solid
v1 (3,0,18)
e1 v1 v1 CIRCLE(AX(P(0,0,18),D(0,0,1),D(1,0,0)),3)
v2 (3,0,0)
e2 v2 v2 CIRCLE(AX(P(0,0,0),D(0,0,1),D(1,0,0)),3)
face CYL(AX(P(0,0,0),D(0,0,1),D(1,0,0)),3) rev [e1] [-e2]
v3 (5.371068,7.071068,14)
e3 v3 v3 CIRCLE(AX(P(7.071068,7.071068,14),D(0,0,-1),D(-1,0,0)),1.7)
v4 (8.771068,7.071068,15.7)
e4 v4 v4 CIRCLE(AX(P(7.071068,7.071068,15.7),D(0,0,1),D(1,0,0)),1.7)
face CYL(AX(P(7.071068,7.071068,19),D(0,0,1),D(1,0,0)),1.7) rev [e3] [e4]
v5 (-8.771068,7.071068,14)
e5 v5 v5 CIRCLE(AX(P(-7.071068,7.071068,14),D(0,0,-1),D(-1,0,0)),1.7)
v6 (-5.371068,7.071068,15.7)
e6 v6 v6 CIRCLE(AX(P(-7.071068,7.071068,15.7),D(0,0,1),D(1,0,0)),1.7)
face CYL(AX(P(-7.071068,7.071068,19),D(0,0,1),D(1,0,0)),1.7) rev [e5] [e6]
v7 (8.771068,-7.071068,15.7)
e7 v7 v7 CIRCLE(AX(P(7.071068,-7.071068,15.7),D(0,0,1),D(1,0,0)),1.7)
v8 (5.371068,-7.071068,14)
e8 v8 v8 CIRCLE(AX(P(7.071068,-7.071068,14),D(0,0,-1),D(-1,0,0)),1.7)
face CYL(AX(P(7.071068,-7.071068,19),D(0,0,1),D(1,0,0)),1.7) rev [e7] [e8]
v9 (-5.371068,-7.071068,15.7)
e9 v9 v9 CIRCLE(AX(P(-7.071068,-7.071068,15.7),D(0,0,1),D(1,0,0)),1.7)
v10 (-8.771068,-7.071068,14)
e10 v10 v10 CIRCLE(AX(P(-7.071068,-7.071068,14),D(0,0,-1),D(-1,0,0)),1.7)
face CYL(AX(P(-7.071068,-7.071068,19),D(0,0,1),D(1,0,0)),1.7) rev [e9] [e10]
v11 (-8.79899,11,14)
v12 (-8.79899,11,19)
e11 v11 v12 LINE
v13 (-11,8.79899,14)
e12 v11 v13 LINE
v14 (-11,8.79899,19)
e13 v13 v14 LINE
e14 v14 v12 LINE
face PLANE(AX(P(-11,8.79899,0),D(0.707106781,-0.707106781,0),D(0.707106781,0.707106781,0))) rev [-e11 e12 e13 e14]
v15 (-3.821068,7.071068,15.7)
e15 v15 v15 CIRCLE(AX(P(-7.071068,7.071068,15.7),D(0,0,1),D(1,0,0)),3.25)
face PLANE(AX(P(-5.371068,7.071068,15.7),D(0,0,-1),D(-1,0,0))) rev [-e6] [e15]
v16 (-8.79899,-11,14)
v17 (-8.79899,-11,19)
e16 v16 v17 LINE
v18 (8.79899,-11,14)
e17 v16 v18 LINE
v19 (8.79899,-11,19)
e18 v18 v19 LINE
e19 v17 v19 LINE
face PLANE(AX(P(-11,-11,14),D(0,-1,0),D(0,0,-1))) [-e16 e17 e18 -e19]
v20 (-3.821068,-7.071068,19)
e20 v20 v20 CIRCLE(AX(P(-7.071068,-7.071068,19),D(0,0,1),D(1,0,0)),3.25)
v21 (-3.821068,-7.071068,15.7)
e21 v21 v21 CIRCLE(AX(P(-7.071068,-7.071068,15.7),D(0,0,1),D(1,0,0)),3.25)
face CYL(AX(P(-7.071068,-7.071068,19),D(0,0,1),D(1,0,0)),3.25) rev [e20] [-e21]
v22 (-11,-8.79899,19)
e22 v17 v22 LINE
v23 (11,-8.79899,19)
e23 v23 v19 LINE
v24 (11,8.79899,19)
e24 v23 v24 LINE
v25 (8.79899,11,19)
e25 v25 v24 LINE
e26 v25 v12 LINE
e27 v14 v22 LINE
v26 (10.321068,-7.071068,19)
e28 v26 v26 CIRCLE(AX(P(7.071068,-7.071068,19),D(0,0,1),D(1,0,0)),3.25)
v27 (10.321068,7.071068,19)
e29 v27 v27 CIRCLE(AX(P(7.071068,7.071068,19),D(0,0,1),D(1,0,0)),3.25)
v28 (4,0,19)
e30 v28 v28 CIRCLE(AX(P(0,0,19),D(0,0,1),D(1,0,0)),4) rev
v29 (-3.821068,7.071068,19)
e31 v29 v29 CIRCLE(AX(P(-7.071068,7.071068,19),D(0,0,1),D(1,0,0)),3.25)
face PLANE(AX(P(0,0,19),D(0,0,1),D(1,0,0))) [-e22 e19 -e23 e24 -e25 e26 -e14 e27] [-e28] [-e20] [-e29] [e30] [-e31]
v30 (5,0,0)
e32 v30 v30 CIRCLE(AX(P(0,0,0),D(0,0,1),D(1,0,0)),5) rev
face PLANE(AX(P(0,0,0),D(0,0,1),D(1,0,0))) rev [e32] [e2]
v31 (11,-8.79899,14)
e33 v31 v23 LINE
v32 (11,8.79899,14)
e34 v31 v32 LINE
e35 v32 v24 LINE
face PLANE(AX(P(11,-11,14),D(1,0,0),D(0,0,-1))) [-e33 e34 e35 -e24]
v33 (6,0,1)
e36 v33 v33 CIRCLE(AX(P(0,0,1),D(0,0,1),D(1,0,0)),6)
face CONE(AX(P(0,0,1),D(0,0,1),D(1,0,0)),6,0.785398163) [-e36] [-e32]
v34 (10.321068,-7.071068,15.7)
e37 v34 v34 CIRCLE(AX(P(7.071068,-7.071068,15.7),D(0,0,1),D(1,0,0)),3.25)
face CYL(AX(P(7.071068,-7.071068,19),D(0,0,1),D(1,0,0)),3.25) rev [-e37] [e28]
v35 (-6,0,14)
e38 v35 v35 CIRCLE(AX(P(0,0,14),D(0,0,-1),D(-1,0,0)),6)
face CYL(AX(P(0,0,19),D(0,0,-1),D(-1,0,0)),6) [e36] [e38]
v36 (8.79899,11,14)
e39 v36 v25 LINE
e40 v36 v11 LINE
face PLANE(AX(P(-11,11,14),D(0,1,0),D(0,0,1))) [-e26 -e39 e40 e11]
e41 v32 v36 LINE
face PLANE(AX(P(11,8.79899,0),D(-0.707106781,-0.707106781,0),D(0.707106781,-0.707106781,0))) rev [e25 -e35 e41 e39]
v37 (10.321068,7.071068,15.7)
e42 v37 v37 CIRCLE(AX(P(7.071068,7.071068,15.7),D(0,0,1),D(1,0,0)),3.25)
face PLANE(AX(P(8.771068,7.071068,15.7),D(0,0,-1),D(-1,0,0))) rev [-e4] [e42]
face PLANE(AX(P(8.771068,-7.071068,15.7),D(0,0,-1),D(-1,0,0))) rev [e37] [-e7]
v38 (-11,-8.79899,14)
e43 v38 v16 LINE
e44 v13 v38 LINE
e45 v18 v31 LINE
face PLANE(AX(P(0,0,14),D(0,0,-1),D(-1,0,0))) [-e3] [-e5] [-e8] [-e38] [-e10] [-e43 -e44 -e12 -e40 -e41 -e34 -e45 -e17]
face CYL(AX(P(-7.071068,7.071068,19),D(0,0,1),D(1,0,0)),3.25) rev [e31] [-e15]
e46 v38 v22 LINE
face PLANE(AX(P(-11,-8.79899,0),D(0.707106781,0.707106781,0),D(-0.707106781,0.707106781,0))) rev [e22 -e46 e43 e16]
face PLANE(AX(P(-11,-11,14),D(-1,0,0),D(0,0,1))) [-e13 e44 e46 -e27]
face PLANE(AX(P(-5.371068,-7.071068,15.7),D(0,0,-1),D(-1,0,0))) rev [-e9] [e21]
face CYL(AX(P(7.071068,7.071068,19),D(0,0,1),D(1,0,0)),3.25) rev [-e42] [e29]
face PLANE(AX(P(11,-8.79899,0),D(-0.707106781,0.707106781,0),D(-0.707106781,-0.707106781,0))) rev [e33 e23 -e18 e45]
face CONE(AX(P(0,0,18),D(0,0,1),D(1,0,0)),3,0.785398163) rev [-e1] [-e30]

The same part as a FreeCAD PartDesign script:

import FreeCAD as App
import Part
import Sketcher


def edges_at(feature, points):
    """Names of the edges that pass closest to the given points."""
    edges = feature.Shape.Edges
    near = lambda p: min(range(len(edges)), key=lambda i: edges[i].distToShape(Part.Vertex(*p))[0])
    return sorted({f"Edge{near(p) + 1}" for p in points})


def add_polygon(sketch, points):
    """Adds a closed chain of lines whose ends are joined by coincident constraints."""
    first, n = sketch.GeometryCount, len(points)
    for a, b in zip(points, points[1:] + points[:1]):
        sketch.addGeometry(Part.LineSegment(App.Vector(*a, 0), App.Vector(*b, 0)), False)
    for i in range(n):
        sketch.addConstraint(Sketcher.Constraint("Coincident", first + i, 2, first + (i + 1) % n, 1))

doc = App.newDocument("Part")
body = doc.addObject("PartDesign::Body", "Body")

sketch1 = body.newObject("Sketcher::SketchObject", "Sketch")
sketch1.AttachmentSupport = (doc.getObject("XY_Plane"), [""])
sketch1.MapMode = "FlatFace"
sketch1.addGeometry(Part.Circle(App.Vector(0, 0, 0), App.Vector(0, 0, 1), 6), False)
sketch1.addConstraint([
    Sketcher.Constraint("Coincident", 0, 3, -1, 1),
    Sketcher.Constraint("Diameter", 0, 12.0),
])
pad1 = body.newObject("PartDesign::Pad", "Pad")
pad1.Profile = sketch1
pad1.Length = 19

sketch2 = body.newObject("Sketcher::SketchObject", "Sketch001")
sketch2.AttachmentSupport = (doc.getObject("XY_Plane"), [""])
sketch2.MapMode = "FlatFace"
sketch2.AttachmentOffset = App.Placement(App.Vector(0, 0, 19), App.Rotation())
add_polygon(sketch2, [(-11, 11), (-11, -11), (11, -11), (11, 11)])
sketch2.addConstraint([
    Sketcher.Constraint("Vertical", 0),
    Sketcher.Constraint("Horizontal", 1),
    Sketcher.Constraint("Vertical", 2),
    Sketcher.Constraint("Horizontal", 3),
    Sketcher.Constraint("Symmetric", 0, 2, 2, 2, -1, 1),
    Sketcher.Constraint("Equal", 3, 0),
    Sketcher.Constraint("DistanceX", 1, 1, 1, 2, 22.0),
])
pad2 = body.newObject("PartDesign::Pad", "Pad001")
pad2.Profile = sketch2
pad2.Length = 5
pad2.Reversed = True

sketch3 = body.newObject("Sketcher::SketchObject", "Sketch002")
sketch3.AttachmentSupport = (doc.getObject("XY_Plane"), [""])
sketch3.MapMode = "FlatFace"
sketch3.AttachmentOffset = App.Placement(App.Vector(0, 0, 19), App.Rotation())
add_polygon(sketch3, [(-11, 11), (-11, 8.79899), (-8.79899, 11)])
add_polygon(sketch3, [(11, 11), (8.79899, 11), (11, 8.79899)])
add_polygon(sketch3, [(11, -11), (11, -8.79899), (8.79899, -11)])
add_polygon(sketch3, [(-11, -11), (-8.79899, -11), (-11, -8.79899)])
sketch3.addConstraint([
    Sketcher.Constraint("Vertical", 0),
    Sketcher.Constraint("Horizontal", 2),
    Sketcher.Constraint("Horizontal", 3),
    Sketcher.Constraint("Vertical", 5),
    Sketcher.Constraint("Vertical", 6),
    Sketcher.Constraint("Horizontal", 8),
    Sketcher.Constraint("Horizontal", 9),
    Sketcher.Constraint("Vertical", 11),
    Sketcher.Constraint("Symmetric", 0, 2, 6, 2, -1, 1),
    Sketcher.Constraint("Symmetric", 1, 2, 7, 2, -1, 1),
    Sketcher.Constraint("Symmetric", 3, 2, 9, 2, -1, 1),
    Sketcher.Constraint("Symmetric", 4, 2, 10, 2, -1, 1),
    Sketcher.Constraint("Symmetric", 1, 2, 3, 2, -2),
    Sketcher.Constraint("Symmetric", 0, 2, 4, 2, -2),
    Sketcher.Constraint("Perpendicular", 1, 4),
    Sketcher.Constraint("DistanceX", 0, 2, -1, 1, 11.0),
    Sketcher.Constraint("DistanceY", -1, 1, 1, 2, 11.0),
    Sketcher.Constraint("Distance", 1, 3.112698),
])
pocket1 = body.newObject("PartDesign::Pocket", "Pocket")
pocket1.Profile = sketch3
pocket1.Type = "ThroughAll"

sketch4 = body.newObject("Sketcher::SketchObject", "Sketch003")
sketch4.AttachmentSupport = (doc.getObject("XY_Plane"), [""])
sketch4.MapMode = "FlatFace"
sketch4.AttachmentOffset = App.Placement(App.Vector(0, 0, 19), App.Rotation())
sketch4.addGeometry([
    Part.Circle(App.Vector(-7.071068, 7.071068, 0), App.Vector(0, 0, 1), 1.7),
    Part.Circle(App.Vector(7.071068, 7.071068, 0), App.Vector(0, 0, 1), 1.7),
    Part.Circle(App.Vector(7.071068, -7.071068, 0), App.Vector(0, 0, 1), 1.7),
    Part.Circle(App.Vector(-7.071068, -7.071068, 0), App.Vector(0, 0, 1), 1.7),
], False)
sketch4.addConstraint([
    Sketcher.Constraint("Equal", 0, 1),
    Sketcher.Constraint("Equal", 1, 2),
    Sketcher.Constraint("Equal", 2, 3),
    Sketcher.Constraint("Symmetric", 0, 3, 2, 3, -1, 1),
    Sketcher.Constraint("Symmetric", 1, 3, 3, 3, -1, 1),
    Sketcher.Constraint("Symmetric", 0, 3, 1, 3, -2),
    Sketcher.Constraint("Diameter", 0, 3.4),
    Sketcher.Constraint("DistanceX", 0, 3, -1, 1, 7.071068),
    Sketcher.Constraint("DistanceY", -1, 1, 0, 3, 7.071068),
])
doc.recompute()
hole = body.newObject("PartDesign::Hole", "Hole")
hole.Profile = sketch4
hole.ThreadType = "None"
hole.Diameter = 3.4
hole.DepthType = "Dimension"
hole.Depth = 22
hole.DrillPoint = "Angled"
hole.DrillPointAngle = 118
hole.HoleCutType = "Counterbore"
hole.HoleCutDiameter = 6.5
hole.HoleCutDepth = 3.3

sketch5 = body.newObject("Sketcher::SketchObject", "Sketch004")
sketch5.AttachmentSupport = (doc.getObject("XY_Plane"), [""])
sketch5.MapMode = "FlatFace"
sketch5.AttachmentOffset = App.Placement(App.Vector(0, 0, 19), App.Rotation())
sketch5.addGeometry(Part.Circle(App.Vector(0, 0, 0), App.Vector(0, 0, 1), 3), False)
sketch5.addConstraint([
    Sketcher.Constraint("Coincident", 0, 3, -1, 1),
    Sketcher.Constraint("Diameter", 0, 6.0),
])
pocket2 = body.newObject("PartDesign::Pocket", "Pocket001")
pocket2.Profile = sketch5
pocket2.Type = "ThroughAll"
doc.recompute()

chamfer = body.newObject("PartDesign::Chamfer", "Chamfer")
chamfer.Base = (pocket2, edges_at(pocket2, [(-3, 0, 19), (-6, 0, 0)]))
chamfer.Size = 1

doc.recompute()
